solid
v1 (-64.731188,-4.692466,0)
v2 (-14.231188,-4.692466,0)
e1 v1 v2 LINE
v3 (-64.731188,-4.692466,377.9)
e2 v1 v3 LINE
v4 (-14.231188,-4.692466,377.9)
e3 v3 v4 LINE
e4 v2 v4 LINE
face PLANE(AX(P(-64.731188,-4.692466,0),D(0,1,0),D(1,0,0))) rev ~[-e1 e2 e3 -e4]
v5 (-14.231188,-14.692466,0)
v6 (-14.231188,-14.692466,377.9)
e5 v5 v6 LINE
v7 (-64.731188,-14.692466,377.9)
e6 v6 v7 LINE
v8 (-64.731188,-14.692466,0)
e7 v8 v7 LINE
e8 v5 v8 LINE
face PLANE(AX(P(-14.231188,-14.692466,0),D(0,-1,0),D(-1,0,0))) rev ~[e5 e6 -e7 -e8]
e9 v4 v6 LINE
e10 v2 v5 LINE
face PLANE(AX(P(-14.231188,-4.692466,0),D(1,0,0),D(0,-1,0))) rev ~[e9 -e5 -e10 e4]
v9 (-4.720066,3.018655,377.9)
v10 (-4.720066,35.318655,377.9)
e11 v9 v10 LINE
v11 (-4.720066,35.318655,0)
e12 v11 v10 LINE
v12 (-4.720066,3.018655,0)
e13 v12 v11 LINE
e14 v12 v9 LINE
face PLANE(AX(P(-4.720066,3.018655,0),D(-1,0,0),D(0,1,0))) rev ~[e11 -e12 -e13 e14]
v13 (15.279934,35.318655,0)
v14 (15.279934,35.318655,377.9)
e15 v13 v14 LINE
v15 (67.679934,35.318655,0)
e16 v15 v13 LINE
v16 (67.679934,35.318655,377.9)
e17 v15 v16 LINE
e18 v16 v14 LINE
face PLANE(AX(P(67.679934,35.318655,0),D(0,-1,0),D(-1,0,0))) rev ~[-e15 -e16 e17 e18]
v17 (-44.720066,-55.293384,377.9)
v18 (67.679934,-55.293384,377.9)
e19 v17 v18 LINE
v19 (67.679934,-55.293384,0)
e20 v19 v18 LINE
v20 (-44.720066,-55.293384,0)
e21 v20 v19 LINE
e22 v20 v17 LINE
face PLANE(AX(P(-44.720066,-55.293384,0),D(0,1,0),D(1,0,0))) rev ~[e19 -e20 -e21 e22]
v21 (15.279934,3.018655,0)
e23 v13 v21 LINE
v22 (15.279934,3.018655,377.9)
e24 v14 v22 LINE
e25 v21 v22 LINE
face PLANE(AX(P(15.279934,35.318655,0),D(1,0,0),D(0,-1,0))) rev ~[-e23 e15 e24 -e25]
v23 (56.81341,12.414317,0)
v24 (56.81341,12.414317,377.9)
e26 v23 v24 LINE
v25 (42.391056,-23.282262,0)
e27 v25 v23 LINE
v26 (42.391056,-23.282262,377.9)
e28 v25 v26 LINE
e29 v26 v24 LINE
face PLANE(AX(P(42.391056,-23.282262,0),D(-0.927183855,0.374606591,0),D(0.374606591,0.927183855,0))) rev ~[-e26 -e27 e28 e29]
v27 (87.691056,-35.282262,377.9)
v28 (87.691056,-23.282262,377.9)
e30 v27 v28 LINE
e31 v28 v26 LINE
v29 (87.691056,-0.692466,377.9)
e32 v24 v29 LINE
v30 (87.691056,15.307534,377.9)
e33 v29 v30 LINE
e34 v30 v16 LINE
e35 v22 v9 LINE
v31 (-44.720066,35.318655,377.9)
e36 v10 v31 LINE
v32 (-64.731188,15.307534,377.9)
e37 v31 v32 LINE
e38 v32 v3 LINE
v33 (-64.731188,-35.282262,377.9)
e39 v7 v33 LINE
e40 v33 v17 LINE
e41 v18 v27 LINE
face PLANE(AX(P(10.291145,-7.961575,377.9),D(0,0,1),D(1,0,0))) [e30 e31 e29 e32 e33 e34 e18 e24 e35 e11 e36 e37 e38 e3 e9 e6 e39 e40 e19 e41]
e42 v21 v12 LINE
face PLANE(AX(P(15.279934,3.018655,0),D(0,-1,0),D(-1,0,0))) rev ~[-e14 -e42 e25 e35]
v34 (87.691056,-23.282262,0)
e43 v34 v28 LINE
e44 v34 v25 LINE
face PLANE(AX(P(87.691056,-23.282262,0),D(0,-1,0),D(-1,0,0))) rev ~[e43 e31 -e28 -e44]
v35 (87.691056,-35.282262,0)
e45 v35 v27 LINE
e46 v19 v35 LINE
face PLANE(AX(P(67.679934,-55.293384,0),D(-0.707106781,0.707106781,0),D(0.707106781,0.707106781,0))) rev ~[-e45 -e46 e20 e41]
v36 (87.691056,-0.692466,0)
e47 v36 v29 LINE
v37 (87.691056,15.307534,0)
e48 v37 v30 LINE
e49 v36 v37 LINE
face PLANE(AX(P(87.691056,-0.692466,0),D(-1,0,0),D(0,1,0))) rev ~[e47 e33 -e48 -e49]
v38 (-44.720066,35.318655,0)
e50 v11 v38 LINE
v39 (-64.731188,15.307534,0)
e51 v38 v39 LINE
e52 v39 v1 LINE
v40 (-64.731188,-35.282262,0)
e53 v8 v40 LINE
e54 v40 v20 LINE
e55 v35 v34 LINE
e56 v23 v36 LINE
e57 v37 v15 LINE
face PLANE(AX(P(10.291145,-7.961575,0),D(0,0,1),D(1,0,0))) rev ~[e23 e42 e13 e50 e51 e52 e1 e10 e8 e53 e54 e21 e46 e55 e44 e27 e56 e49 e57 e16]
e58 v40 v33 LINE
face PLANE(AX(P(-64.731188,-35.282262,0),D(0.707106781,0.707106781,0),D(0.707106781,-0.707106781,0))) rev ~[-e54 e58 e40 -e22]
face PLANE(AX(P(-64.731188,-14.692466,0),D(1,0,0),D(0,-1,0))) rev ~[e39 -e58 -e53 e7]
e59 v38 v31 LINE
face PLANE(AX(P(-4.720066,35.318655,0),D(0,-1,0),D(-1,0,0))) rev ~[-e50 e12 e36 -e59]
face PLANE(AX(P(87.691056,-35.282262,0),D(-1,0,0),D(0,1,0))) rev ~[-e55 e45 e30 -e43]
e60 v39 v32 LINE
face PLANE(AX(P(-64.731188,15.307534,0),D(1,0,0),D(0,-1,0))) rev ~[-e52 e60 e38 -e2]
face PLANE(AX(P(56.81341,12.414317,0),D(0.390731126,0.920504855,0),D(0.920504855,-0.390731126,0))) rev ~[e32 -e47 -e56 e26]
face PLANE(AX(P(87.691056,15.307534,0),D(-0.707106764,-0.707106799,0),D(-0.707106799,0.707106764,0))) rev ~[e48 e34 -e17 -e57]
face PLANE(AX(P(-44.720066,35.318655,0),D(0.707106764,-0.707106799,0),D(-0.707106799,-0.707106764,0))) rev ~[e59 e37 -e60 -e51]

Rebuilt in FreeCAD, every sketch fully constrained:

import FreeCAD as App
import Part
import Sketcher
Q = App.Units.Quantity


def add_polygon(sketch, points):
    """Adds a closed chain of lines whose ends are joined by coincident constraints."""
    first, n = sketch.GeometryCount, len(points)
    for a, b in zip(points, points[1:] + points[:1]):
        sketch.addGeometry(Part.LineSegment(App.Vector(*a, 0), App.Vector(*b, 0)), False)
    for i in range(n):
        sketch.addConstraint(Sketcher.Constraint("Coincident", first + i, 2, first + (i + 1) % n, 1))

doc = App.newDocument("Part")
params = doc.addObject("Spreadsheet::Sheet", "Params")
for row, (alias, value) in enumerate([
    ("sketch1_width", "20 mm"),
    ("sketch1_width2", "40 mm"),
    ("sketch1_height", "12 mm"),
    ("sketch1_height2", "16 mm"),
    ("sketch1_height3", "10 mm"),
    ("pad1_length", "377.9 mm"),
], start=1):
    params.set(f"A{row}", alias)
    params.set(f"B{row}", "=" + value)
    params.setAlias(f"B{row}", alias)

body = doc.addObject("PartDesign::Body", "Body")

# Sketch on XY plane
sketch1 = body.newObject("Sketcher::SketchObject", "Sketch")
sketch1.AttachmentSupport = (doc.getObject("XY_Plane"), [""])
sketch1.MapMode = "FlatFace"
add_polygon(sketch1, [(-65, -35), (-45, -55), (68, -55), (88, -35), (88, -23), (42, -23), (57, 12), (88, -1), (88, 15), (68, 35), (15, 35), (15, 3), (-5, 3), (-5, 35), (-45, 35), (-65, 15), (-65, -5), (-14, -5), (-14, -15), (-65, -15)])  # lines 0-19
sketch1.addConstraint([
    Sketcher.Constraint("Horizontal", 1),
    Sketcher.Constraint("Vertical", 3),
    Sketcher.Constraint("Horizontal", 4),
    Sketcher.Constraint("Vertical", 7),
    Sketcher.Constraint("Horizontal", 9),
    Sketcher.Constraint("Vertical", 10),
    Sketcher.Constraint("Horizontal", 11),
    Sketcher.Constraint("Vertical", 12),
    Sketcher.Constraint("Horizontal", 13),
    Sketcher.Constraint("Vertical", 15),
    Sketcher.Constraint("Horizontal", 16),
    Sketcher.Constraint("Vertical", 17),
    Sketcher.Constraint("Horizontal", 18),
    Sketcher.Constraint("Vertical", 19),
    Sketcher.Constraint("Perpendicular", 0, 2),
    Sketcher.Constraint("Perpendicular", 2, 8),
    Sketcher.Constraint("Perpendicular", 8, 14),
    Sketcher.Constraint("Horizontal", 9, 2, 12, 2),
    Sketcher.Constraint("Horizontal", 7, 2, 14, 2),
    Sketcher.Constraint("Horizontal", 2, 2, 19, 2),
    Sketcher.Constraint("Vertical", 3, 2, 6, 2),
    Sketcher.Constraint("Vertical", 1, 2, 8, 2),
    Sketcher.Constraint("Vertical", 0, 2, 13, 2),
    Sketcher.Constraint("Vertical", 15, 2, 18, 2),
    Sketcher.Constraint("Equal", 11, 15),
    Sketcher.Constraint("DistanceX", 11, 2, 11, 1, 20.0),
    Sketcher.Constraint("DistanceX", 13, 2, 13, 1, 40.0),
    Sketcher.Constraint("DistanceY", 3, 1, 3, 2, 12.0),
    Sketcher.Constraint("DistanceY", 7, 1, 7, 2, 16.0),
    Sketcher.Constraint("DistanceY", 17, 2, 17, 1, 10.0),
    Sketcher.Constraint("Angle", 5, Q("68 deg")),
    Sketcher.Constraint("Angle", 6, Q("-23 deg")),
    Sketcher.Constraint("DistanceX", 1, 1, 1, 2, 112.4),
    Sketcher.Constraint("DistanceX", 4, 2, 4, 1, 45.3),
    Sketcher.Constraint("DistanceX", 16, 1, 16, 2, 50.5),
    Sketcher.Constraint("DistanceY", 10, 2, 10, 1, 32.3),
    Sketcher.Constraint("Distance", 0, 28.3),
    Sketcher.Constraint("Distance", 5, 38.500001),
    Sketcher.Constraint("DistanceY", 3, 2, -1, 1, 23.282262),
    Sketcher.Constraint("DistanceX", -1, 1, 5, 2, 56.81341),
])
sketch1.setExpression("Constraints[45]", "Params.sketch1_width")
sketch1.setExpression("Constraints[46]", "Params.sketch1_width2")
sketch1.setExpression("Constraints[47]", "Params.sketch1_height")
sketch1.setExpression("Constraints[48]", "Params.sketch1_height2")
sketch1.setExpression("Constraints[49]", "Params.sketch1_height3")
pad1 = body.newObject("PartDesign::Pad", "Pad")
pad1.Profile = sketch1
pad1.setExpression("Length", "Params.pad1_length")

doc.recompute()
